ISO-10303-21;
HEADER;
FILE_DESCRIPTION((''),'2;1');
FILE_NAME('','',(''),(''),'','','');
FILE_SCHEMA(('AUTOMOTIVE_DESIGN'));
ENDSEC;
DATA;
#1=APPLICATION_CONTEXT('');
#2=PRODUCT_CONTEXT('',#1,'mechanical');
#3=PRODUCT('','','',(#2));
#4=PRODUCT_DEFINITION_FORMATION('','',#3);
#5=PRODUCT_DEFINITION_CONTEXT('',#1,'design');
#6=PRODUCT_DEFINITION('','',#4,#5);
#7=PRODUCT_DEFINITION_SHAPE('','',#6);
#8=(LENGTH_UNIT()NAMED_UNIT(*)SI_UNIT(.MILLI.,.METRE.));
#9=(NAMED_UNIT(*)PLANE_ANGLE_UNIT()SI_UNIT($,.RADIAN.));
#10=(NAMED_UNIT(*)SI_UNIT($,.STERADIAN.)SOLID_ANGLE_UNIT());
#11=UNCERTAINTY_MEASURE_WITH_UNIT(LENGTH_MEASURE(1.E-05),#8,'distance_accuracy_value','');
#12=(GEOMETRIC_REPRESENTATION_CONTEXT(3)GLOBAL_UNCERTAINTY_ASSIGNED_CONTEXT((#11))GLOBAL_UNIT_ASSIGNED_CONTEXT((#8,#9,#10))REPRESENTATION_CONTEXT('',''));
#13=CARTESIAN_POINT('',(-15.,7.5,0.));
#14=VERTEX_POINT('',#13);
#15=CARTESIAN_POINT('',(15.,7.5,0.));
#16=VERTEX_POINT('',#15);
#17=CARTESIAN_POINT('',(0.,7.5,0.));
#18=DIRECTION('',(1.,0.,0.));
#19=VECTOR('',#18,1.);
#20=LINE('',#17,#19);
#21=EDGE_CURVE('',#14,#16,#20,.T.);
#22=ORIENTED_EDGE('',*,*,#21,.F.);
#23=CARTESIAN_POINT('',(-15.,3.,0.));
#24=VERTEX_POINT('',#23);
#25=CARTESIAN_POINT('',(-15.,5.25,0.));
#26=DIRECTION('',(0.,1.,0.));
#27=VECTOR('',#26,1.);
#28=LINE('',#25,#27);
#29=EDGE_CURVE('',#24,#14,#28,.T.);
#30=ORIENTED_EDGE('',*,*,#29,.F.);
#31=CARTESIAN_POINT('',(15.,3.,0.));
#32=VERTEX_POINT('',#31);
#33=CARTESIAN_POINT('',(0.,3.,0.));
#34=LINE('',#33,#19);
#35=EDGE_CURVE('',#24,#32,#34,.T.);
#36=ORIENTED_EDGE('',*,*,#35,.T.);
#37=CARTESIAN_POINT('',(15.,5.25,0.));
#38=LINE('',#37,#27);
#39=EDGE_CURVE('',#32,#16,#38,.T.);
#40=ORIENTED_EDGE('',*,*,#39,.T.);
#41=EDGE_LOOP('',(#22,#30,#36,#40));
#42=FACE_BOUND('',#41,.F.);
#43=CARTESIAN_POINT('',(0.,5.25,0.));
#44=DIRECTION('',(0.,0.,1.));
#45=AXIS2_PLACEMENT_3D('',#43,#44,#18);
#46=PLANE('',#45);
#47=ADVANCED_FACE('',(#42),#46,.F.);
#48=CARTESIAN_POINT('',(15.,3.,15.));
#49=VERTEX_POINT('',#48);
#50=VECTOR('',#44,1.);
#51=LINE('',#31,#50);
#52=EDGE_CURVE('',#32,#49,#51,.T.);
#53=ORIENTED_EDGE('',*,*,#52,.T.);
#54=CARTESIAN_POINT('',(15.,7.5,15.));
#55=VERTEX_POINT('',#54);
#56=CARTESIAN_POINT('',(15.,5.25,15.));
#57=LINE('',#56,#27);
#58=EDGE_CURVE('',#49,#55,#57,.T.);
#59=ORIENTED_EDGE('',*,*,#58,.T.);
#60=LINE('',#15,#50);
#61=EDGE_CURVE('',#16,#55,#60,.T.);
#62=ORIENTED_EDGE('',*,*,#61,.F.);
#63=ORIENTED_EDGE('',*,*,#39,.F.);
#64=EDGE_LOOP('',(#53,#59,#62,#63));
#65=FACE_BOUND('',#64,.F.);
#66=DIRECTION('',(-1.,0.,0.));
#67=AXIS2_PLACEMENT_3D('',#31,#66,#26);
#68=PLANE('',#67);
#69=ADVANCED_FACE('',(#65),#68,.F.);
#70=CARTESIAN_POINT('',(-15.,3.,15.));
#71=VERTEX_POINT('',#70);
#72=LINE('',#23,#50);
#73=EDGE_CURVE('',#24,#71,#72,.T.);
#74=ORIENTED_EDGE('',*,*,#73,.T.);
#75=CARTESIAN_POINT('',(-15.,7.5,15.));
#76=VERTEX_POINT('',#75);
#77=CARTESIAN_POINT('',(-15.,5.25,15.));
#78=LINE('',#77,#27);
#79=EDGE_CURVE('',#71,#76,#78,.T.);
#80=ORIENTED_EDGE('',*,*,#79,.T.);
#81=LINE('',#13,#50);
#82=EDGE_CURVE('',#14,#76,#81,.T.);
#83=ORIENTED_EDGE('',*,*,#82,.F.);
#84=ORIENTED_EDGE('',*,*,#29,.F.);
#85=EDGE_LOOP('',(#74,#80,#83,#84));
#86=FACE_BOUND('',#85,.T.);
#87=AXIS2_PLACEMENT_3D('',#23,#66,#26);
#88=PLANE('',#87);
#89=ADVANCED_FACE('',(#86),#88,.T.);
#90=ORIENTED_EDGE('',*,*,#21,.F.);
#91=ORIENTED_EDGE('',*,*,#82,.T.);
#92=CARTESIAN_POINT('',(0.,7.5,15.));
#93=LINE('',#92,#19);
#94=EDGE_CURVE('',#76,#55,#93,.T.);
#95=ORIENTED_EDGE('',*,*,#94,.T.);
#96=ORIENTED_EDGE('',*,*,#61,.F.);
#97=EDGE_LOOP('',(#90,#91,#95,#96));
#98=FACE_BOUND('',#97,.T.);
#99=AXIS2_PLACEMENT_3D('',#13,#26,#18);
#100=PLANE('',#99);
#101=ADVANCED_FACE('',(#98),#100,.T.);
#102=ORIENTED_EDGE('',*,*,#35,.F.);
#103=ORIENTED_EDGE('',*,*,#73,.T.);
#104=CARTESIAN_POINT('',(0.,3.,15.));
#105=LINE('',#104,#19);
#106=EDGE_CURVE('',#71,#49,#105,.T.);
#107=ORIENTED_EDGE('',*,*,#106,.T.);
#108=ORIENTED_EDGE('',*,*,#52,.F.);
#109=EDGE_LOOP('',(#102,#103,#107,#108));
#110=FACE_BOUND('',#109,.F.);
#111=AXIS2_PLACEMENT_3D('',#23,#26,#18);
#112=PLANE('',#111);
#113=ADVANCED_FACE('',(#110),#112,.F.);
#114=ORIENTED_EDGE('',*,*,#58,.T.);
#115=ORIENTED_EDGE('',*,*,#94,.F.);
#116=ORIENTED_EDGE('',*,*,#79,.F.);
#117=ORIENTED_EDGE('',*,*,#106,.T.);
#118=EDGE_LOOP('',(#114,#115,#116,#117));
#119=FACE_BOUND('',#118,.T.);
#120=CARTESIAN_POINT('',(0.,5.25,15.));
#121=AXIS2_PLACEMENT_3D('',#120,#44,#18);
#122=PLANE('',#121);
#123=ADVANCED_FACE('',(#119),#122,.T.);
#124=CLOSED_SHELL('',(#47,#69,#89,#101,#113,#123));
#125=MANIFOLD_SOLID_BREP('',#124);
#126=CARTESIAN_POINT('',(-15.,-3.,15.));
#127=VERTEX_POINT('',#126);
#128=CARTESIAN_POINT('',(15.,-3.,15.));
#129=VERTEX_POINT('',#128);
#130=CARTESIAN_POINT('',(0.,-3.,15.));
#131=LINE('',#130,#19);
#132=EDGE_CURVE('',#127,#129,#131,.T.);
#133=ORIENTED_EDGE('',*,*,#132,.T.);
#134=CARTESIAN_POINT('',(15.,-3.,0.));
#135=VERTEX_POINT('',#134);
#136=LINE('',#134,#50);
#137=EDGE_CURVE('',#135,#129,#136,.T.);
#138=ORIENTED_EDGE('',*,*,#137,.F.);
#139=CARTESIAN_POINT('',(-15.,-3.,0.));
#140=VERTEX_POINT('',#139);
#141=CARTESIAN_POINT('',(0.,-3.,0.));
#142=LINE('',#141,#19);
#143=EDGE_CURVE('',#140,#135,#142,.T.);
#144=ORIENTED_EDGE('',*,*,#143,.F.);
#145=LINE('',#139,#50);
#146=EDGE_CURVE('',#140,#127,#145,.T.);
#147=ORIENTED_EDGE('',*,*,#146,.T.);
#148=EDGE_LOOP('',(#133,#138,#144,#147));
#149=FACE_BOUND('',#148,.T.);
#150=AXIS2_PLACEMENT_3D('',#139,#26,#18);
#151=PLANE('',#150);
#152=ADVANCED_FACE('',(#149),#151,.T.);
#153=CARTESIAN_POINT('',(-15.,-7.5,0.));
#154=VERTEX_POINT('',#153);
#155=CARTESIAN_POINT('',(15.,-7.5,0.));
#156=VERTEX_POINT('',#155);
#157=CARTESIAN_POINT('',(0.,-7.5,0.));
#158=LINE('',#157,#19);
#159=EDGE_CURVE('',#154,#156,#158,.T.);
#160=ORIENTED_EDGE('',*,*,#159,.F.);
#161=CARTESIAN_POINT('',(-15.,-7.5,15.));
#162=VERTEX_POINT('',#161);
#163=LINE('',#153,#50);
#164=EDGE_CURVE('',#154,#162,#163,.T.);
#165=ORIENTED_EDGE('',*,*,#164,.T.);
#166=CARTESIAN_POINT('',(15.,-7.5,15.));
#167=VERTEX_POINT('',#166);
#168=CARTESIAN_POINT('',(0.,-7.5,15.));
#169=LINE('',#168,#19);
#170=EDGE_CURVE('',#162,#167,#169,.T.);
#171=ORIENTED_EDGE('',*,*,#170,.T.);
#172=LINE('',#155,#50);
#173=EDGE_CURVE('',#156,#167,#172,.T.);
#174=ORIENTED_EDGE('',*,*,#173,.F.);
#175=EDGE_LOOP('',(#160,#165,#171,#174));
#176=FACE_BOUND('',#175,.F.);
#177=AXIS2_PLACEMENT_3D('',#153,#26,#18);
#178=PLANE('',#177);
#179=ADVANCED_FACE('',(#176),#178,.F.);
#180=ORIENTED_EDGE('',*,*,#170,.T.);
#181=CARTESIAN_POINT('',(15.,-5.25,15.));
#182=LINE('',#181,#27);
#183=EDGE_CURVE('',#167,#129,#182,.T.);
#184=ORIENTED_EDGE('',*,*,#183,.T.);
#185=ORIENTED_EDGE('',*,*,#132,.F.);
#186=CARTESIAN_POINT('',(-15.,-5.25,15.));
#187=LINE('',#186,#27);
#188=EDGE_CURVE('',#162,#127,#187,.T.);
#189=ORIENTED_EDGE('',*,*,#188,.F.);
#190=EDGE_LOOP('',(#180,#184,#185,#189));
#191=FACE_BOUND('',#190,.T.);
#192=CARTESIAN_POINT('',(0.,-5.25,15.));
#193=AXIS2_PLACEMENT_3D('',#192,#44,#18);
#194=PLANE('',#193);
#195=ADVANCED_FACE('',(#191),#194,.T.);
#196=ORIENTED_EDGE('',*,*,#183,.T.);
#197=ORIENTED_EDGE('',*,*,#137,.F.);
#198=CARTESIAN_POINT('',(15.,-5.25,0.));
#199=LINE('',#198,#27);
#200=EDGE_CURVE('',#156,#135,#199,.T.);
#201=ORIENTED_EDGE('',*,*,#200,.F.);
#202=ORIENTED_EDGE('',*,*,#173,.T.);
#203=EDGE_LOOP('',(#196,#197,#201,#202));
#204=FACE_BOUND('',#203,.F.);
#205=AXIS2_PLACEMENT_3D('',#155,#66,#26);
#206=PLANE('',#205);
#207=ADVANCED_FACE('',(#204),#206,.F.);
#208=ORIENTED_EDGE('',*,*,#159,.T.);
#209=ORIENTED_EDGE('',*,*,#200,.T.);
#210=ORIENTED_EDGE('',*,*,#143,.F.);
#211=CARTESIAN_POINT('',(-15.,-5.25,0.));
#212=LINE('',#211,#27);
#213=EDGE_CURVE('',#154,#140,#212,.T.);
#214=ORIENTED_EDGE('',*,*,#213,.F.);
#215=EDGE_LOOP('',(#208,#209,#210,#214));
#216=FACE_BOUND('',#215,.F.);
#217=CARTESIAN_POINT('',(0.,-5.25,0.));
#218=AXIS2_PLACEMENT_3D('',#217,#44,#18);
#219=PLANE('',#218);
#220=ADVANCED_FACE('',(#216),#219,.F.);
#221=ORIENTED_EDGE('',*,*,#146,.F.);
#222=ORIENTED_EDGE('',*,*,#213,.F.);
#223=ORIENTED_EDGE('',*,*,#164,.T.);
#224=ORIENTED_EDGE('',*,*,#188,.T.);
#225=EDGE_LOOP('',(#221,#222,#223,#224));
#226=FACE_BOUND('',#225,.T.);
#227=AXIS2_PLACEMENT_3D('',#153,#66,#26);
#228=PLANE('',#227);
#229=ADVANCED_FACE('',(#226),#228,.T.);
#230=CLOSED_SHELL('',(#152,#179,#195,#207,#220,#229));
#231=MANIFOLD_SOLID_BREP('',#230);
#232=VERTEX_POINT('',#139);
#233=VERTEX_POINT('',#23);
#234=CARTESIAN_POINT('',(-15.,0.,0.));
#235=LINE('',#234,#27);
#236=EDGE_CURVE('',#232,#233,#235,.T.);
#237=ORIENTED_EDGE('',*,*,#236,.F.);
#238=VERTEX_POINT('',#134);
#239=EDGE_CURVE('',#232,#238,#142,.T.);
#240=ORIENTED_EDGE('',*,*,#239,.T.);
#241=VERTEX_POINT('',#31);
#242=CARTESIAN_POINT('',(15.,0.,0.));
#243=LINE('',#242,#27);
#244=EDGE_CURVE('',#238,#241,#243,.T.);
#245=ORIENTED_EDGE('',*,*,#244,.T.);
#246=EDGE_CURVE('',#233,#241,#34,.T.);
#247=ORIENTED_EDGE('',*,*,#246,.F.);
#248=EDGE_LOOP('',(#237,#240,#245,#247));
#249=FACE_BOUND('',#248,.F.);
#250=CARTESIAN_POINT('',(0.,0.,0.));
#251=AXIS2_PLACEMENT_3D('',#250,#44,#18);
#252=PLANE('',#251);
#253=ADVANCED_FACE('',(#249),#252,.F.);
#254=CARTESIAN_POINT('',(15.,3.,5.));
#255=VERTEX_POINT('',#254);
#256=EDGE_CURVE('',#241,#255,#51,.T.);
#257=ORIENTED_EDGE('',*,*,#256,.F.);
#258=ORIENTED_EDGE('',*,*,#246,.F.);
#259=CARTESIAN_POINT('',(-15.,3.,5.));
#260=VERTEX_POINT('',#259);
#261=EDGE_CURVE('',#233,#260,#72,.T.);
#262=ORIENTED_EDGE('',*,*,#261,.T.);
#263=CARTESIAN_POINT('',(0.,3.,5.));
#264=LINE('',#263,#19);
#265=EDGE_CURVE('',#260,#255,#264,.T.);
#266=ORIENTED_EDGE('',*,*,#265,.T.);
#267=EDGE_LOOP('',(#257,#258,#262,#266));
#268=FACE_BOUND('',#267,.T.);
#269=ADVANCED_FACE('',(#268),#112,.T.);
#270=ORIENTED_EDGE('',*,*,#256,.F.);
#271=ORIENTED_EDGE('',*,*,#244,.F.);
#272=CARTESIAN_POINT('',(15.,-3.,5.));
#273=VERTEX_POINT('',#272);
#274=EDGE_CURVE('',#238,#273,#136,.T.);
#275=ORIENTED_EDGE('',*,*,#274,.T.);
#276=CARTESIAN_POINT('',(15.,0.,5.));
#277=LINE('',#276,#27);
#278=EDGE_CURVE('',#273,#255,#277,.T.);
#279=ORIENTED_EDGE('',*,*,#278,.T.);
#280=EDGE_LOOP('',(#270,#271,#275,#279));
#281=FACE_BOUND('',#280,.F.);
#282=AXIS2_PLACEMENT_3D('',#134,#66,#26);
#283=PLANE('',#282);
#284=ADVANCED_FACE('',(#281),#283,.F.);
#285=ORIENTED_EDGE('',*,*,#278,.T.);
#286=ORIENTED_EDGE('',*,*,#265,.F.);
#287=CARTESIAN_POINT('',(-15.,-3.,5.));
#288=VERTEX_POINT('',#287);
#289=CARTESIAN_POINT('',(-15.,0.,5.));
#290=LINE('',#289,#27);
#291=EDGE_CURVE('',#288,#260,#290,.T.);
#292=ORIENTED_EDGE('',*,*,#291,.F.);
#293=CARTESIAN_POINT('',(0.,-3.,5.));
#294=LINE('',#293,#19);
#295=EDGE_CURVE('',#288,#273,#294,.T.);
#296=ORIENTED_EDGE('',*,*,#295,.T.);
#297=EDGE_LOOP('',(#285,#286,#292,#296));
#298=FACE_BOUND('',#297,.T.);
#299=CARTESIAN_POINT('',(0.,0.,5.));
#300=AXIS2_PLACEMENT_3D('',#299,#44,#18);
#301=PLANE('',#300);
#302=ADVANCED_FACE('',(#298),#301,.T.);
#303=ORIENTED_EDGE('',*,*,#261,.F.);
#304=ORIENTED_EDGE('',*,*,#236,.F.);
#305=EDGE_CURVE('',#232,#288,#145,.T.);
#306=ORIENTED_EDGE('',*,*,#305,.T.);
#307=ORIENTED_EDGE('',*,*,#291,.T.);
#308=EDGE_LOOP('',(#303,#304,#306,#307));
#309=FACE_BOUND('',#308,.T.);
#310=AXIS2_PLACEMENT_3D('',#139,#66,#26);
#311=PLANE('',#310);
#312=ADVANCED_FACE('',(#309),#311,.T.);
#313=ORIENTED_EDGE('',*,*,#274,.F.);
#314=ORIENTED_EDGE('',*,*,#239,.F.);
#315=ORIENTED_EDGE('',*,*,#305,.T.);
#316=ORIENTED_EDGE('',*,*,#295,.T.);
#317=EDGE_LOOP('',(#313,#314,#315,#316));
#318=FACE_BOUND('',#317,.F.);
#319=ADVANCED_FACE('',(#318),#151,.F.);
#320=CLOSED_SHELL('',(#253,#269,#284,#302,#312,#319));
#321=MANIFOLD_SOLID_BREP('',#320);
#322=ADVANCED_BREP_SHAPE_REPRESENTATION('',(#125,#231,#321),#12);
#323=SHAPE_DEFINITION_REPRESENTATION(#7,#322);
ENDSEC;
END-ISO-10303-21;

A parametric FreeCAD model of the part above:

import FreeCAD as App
import Part
import Sketcher

V = App.Vector
Q = App.Units.Quantity


def add_polygon(sketch, points):
    """Adds a closed chain of lines whose ends are joined by coincident constraints."""
    first, n = sketch.GeometryCount, len(points)
    for a, b in zip(points, points[1:] + points[:1]):
        sketch.addGeometry(Part.LineSegment(App.Vector(*a, 0), App.Vector(*b, 0)), False)
    for i in range(n):
        sketch.addConstraint(Sketcher.Constraint("Coincident", first + i, 2, first + (i + 1) % n, 1))

doc = App.newDocument("Part")
body = doc.addObject("PartDesign::Body", "Body")
body.AllowCompound = True

# Sketch on XY plane
sketch1 = doc.addObject("Sketcher::SketchObject", "Sketch")
body.addObject(sketch1)
sketch1.AttachmentSupport = (doc.XY_Plane, [""])
sketch1.MapMode = "FlatFace"
add_polygon(sketch1, [(-15, 7.5), (-15, 3), (15, 3), (15, 7.5)])  # lines 0-3
add_polygon(sketch1, [(-15, -3), (-15, -7.5), (15, -7.5), (15, -3)])  # lines 4-7
sketch1.addConstraint(Sketcher.Constraint("Vertical", 0))
sketch1.addConstraint(Sketcher.Constraint("Horizontal", 1))
sketch1.addConstraint(Sketcher.Constraint("Vertical", 2))
sketch1.addConstraint(Sketcher.Constraint("Horizontal", 3))
sketch1.addConstraint(Sketcher.Constraint("Vertical", 4))
sketch1.addConstraint(Sketcher.Constraint("Horizontal", 5))
sketch1.addConstraint(Sketcher.Constraint("Vertical", 6))
sketch1.addConstraint(Sketcher.Constraint("Horizontal", 7))
sketch1.addConstraint(Sketcher.Constraint("Symmetric", 2, 2, 4, 2, -1, 1))
sketch1.addConstraint(Sketcher.Constraint("Symmetric", 0, 2, 6, 2, -1, 1))
sketch1.addConstraint(Sketcher.Constraint("Vertical", 3, 2, 4, 2))
sketch1.addConstraint(Sketcher.Constraint("DistanceX", 1, 1, 1, 2, Q("30 mm")))
sketch1.addConstraint(Sketcher.Constraint("DistanceY", 0, 2, 0, 1, Q("4.5 mm")))
sketch1.addConstraint(Sketcher.Constraint("DistanceY", -1, 1, 0, 2, Q("3 mm")))
pad1 = doc.addObject("PartDesign::Pad", "Pad")
body.addObject(pad1)
pad1.Profile = sketch1
pad1.Length = 15
body2 = doc.addObject("PartDesign::Body", "Body001")

# Sketch on XY plane
sketch2 = doc.addObject("Sketcher::SketchObject", "Sketch001")
body2.addObject(sketch2)
sketch2.AttachmentSupport = (doc.getObject("XY_Plane001"), [""])
sketch2.MapMode = "FlatFace"
add_polygon(sketch2, [(-15, 3), (-15, -3), (15, -3), (15, 3)])  # lines 0-3
sketch2.addConstraint(Sketcher.Constraint("Vertical", 0))
sketch2.addConstraint(Sketcher.Constraint("Horizontal", 1))
sketch2.addConstraint(Sketcher.Constraint("Vertical", 2))
sketch2.addConstraint(Sketcher.Constraint("Horizontal", 3))
sketch2.addConstraint(Sketcher.Constraint("Symmetric", 0, 2, 2, 2, -1, 1))
sketch2.addConstraint(Sketcher.Constraint("DistanceX", 1, 1, 1, 2, Q("30 mm")))
sketch2.addConstraint(Sketcher.Constraint("DistanceY", 0, 2, 0, 1, Q("6 mm")))
pad2 = doc.addObject("PartDesign::Pad", "Pad001")
body2.addObject(pad2)
pad2.Profile = sketch2
pad2.Length = 5

doc.recompute()
